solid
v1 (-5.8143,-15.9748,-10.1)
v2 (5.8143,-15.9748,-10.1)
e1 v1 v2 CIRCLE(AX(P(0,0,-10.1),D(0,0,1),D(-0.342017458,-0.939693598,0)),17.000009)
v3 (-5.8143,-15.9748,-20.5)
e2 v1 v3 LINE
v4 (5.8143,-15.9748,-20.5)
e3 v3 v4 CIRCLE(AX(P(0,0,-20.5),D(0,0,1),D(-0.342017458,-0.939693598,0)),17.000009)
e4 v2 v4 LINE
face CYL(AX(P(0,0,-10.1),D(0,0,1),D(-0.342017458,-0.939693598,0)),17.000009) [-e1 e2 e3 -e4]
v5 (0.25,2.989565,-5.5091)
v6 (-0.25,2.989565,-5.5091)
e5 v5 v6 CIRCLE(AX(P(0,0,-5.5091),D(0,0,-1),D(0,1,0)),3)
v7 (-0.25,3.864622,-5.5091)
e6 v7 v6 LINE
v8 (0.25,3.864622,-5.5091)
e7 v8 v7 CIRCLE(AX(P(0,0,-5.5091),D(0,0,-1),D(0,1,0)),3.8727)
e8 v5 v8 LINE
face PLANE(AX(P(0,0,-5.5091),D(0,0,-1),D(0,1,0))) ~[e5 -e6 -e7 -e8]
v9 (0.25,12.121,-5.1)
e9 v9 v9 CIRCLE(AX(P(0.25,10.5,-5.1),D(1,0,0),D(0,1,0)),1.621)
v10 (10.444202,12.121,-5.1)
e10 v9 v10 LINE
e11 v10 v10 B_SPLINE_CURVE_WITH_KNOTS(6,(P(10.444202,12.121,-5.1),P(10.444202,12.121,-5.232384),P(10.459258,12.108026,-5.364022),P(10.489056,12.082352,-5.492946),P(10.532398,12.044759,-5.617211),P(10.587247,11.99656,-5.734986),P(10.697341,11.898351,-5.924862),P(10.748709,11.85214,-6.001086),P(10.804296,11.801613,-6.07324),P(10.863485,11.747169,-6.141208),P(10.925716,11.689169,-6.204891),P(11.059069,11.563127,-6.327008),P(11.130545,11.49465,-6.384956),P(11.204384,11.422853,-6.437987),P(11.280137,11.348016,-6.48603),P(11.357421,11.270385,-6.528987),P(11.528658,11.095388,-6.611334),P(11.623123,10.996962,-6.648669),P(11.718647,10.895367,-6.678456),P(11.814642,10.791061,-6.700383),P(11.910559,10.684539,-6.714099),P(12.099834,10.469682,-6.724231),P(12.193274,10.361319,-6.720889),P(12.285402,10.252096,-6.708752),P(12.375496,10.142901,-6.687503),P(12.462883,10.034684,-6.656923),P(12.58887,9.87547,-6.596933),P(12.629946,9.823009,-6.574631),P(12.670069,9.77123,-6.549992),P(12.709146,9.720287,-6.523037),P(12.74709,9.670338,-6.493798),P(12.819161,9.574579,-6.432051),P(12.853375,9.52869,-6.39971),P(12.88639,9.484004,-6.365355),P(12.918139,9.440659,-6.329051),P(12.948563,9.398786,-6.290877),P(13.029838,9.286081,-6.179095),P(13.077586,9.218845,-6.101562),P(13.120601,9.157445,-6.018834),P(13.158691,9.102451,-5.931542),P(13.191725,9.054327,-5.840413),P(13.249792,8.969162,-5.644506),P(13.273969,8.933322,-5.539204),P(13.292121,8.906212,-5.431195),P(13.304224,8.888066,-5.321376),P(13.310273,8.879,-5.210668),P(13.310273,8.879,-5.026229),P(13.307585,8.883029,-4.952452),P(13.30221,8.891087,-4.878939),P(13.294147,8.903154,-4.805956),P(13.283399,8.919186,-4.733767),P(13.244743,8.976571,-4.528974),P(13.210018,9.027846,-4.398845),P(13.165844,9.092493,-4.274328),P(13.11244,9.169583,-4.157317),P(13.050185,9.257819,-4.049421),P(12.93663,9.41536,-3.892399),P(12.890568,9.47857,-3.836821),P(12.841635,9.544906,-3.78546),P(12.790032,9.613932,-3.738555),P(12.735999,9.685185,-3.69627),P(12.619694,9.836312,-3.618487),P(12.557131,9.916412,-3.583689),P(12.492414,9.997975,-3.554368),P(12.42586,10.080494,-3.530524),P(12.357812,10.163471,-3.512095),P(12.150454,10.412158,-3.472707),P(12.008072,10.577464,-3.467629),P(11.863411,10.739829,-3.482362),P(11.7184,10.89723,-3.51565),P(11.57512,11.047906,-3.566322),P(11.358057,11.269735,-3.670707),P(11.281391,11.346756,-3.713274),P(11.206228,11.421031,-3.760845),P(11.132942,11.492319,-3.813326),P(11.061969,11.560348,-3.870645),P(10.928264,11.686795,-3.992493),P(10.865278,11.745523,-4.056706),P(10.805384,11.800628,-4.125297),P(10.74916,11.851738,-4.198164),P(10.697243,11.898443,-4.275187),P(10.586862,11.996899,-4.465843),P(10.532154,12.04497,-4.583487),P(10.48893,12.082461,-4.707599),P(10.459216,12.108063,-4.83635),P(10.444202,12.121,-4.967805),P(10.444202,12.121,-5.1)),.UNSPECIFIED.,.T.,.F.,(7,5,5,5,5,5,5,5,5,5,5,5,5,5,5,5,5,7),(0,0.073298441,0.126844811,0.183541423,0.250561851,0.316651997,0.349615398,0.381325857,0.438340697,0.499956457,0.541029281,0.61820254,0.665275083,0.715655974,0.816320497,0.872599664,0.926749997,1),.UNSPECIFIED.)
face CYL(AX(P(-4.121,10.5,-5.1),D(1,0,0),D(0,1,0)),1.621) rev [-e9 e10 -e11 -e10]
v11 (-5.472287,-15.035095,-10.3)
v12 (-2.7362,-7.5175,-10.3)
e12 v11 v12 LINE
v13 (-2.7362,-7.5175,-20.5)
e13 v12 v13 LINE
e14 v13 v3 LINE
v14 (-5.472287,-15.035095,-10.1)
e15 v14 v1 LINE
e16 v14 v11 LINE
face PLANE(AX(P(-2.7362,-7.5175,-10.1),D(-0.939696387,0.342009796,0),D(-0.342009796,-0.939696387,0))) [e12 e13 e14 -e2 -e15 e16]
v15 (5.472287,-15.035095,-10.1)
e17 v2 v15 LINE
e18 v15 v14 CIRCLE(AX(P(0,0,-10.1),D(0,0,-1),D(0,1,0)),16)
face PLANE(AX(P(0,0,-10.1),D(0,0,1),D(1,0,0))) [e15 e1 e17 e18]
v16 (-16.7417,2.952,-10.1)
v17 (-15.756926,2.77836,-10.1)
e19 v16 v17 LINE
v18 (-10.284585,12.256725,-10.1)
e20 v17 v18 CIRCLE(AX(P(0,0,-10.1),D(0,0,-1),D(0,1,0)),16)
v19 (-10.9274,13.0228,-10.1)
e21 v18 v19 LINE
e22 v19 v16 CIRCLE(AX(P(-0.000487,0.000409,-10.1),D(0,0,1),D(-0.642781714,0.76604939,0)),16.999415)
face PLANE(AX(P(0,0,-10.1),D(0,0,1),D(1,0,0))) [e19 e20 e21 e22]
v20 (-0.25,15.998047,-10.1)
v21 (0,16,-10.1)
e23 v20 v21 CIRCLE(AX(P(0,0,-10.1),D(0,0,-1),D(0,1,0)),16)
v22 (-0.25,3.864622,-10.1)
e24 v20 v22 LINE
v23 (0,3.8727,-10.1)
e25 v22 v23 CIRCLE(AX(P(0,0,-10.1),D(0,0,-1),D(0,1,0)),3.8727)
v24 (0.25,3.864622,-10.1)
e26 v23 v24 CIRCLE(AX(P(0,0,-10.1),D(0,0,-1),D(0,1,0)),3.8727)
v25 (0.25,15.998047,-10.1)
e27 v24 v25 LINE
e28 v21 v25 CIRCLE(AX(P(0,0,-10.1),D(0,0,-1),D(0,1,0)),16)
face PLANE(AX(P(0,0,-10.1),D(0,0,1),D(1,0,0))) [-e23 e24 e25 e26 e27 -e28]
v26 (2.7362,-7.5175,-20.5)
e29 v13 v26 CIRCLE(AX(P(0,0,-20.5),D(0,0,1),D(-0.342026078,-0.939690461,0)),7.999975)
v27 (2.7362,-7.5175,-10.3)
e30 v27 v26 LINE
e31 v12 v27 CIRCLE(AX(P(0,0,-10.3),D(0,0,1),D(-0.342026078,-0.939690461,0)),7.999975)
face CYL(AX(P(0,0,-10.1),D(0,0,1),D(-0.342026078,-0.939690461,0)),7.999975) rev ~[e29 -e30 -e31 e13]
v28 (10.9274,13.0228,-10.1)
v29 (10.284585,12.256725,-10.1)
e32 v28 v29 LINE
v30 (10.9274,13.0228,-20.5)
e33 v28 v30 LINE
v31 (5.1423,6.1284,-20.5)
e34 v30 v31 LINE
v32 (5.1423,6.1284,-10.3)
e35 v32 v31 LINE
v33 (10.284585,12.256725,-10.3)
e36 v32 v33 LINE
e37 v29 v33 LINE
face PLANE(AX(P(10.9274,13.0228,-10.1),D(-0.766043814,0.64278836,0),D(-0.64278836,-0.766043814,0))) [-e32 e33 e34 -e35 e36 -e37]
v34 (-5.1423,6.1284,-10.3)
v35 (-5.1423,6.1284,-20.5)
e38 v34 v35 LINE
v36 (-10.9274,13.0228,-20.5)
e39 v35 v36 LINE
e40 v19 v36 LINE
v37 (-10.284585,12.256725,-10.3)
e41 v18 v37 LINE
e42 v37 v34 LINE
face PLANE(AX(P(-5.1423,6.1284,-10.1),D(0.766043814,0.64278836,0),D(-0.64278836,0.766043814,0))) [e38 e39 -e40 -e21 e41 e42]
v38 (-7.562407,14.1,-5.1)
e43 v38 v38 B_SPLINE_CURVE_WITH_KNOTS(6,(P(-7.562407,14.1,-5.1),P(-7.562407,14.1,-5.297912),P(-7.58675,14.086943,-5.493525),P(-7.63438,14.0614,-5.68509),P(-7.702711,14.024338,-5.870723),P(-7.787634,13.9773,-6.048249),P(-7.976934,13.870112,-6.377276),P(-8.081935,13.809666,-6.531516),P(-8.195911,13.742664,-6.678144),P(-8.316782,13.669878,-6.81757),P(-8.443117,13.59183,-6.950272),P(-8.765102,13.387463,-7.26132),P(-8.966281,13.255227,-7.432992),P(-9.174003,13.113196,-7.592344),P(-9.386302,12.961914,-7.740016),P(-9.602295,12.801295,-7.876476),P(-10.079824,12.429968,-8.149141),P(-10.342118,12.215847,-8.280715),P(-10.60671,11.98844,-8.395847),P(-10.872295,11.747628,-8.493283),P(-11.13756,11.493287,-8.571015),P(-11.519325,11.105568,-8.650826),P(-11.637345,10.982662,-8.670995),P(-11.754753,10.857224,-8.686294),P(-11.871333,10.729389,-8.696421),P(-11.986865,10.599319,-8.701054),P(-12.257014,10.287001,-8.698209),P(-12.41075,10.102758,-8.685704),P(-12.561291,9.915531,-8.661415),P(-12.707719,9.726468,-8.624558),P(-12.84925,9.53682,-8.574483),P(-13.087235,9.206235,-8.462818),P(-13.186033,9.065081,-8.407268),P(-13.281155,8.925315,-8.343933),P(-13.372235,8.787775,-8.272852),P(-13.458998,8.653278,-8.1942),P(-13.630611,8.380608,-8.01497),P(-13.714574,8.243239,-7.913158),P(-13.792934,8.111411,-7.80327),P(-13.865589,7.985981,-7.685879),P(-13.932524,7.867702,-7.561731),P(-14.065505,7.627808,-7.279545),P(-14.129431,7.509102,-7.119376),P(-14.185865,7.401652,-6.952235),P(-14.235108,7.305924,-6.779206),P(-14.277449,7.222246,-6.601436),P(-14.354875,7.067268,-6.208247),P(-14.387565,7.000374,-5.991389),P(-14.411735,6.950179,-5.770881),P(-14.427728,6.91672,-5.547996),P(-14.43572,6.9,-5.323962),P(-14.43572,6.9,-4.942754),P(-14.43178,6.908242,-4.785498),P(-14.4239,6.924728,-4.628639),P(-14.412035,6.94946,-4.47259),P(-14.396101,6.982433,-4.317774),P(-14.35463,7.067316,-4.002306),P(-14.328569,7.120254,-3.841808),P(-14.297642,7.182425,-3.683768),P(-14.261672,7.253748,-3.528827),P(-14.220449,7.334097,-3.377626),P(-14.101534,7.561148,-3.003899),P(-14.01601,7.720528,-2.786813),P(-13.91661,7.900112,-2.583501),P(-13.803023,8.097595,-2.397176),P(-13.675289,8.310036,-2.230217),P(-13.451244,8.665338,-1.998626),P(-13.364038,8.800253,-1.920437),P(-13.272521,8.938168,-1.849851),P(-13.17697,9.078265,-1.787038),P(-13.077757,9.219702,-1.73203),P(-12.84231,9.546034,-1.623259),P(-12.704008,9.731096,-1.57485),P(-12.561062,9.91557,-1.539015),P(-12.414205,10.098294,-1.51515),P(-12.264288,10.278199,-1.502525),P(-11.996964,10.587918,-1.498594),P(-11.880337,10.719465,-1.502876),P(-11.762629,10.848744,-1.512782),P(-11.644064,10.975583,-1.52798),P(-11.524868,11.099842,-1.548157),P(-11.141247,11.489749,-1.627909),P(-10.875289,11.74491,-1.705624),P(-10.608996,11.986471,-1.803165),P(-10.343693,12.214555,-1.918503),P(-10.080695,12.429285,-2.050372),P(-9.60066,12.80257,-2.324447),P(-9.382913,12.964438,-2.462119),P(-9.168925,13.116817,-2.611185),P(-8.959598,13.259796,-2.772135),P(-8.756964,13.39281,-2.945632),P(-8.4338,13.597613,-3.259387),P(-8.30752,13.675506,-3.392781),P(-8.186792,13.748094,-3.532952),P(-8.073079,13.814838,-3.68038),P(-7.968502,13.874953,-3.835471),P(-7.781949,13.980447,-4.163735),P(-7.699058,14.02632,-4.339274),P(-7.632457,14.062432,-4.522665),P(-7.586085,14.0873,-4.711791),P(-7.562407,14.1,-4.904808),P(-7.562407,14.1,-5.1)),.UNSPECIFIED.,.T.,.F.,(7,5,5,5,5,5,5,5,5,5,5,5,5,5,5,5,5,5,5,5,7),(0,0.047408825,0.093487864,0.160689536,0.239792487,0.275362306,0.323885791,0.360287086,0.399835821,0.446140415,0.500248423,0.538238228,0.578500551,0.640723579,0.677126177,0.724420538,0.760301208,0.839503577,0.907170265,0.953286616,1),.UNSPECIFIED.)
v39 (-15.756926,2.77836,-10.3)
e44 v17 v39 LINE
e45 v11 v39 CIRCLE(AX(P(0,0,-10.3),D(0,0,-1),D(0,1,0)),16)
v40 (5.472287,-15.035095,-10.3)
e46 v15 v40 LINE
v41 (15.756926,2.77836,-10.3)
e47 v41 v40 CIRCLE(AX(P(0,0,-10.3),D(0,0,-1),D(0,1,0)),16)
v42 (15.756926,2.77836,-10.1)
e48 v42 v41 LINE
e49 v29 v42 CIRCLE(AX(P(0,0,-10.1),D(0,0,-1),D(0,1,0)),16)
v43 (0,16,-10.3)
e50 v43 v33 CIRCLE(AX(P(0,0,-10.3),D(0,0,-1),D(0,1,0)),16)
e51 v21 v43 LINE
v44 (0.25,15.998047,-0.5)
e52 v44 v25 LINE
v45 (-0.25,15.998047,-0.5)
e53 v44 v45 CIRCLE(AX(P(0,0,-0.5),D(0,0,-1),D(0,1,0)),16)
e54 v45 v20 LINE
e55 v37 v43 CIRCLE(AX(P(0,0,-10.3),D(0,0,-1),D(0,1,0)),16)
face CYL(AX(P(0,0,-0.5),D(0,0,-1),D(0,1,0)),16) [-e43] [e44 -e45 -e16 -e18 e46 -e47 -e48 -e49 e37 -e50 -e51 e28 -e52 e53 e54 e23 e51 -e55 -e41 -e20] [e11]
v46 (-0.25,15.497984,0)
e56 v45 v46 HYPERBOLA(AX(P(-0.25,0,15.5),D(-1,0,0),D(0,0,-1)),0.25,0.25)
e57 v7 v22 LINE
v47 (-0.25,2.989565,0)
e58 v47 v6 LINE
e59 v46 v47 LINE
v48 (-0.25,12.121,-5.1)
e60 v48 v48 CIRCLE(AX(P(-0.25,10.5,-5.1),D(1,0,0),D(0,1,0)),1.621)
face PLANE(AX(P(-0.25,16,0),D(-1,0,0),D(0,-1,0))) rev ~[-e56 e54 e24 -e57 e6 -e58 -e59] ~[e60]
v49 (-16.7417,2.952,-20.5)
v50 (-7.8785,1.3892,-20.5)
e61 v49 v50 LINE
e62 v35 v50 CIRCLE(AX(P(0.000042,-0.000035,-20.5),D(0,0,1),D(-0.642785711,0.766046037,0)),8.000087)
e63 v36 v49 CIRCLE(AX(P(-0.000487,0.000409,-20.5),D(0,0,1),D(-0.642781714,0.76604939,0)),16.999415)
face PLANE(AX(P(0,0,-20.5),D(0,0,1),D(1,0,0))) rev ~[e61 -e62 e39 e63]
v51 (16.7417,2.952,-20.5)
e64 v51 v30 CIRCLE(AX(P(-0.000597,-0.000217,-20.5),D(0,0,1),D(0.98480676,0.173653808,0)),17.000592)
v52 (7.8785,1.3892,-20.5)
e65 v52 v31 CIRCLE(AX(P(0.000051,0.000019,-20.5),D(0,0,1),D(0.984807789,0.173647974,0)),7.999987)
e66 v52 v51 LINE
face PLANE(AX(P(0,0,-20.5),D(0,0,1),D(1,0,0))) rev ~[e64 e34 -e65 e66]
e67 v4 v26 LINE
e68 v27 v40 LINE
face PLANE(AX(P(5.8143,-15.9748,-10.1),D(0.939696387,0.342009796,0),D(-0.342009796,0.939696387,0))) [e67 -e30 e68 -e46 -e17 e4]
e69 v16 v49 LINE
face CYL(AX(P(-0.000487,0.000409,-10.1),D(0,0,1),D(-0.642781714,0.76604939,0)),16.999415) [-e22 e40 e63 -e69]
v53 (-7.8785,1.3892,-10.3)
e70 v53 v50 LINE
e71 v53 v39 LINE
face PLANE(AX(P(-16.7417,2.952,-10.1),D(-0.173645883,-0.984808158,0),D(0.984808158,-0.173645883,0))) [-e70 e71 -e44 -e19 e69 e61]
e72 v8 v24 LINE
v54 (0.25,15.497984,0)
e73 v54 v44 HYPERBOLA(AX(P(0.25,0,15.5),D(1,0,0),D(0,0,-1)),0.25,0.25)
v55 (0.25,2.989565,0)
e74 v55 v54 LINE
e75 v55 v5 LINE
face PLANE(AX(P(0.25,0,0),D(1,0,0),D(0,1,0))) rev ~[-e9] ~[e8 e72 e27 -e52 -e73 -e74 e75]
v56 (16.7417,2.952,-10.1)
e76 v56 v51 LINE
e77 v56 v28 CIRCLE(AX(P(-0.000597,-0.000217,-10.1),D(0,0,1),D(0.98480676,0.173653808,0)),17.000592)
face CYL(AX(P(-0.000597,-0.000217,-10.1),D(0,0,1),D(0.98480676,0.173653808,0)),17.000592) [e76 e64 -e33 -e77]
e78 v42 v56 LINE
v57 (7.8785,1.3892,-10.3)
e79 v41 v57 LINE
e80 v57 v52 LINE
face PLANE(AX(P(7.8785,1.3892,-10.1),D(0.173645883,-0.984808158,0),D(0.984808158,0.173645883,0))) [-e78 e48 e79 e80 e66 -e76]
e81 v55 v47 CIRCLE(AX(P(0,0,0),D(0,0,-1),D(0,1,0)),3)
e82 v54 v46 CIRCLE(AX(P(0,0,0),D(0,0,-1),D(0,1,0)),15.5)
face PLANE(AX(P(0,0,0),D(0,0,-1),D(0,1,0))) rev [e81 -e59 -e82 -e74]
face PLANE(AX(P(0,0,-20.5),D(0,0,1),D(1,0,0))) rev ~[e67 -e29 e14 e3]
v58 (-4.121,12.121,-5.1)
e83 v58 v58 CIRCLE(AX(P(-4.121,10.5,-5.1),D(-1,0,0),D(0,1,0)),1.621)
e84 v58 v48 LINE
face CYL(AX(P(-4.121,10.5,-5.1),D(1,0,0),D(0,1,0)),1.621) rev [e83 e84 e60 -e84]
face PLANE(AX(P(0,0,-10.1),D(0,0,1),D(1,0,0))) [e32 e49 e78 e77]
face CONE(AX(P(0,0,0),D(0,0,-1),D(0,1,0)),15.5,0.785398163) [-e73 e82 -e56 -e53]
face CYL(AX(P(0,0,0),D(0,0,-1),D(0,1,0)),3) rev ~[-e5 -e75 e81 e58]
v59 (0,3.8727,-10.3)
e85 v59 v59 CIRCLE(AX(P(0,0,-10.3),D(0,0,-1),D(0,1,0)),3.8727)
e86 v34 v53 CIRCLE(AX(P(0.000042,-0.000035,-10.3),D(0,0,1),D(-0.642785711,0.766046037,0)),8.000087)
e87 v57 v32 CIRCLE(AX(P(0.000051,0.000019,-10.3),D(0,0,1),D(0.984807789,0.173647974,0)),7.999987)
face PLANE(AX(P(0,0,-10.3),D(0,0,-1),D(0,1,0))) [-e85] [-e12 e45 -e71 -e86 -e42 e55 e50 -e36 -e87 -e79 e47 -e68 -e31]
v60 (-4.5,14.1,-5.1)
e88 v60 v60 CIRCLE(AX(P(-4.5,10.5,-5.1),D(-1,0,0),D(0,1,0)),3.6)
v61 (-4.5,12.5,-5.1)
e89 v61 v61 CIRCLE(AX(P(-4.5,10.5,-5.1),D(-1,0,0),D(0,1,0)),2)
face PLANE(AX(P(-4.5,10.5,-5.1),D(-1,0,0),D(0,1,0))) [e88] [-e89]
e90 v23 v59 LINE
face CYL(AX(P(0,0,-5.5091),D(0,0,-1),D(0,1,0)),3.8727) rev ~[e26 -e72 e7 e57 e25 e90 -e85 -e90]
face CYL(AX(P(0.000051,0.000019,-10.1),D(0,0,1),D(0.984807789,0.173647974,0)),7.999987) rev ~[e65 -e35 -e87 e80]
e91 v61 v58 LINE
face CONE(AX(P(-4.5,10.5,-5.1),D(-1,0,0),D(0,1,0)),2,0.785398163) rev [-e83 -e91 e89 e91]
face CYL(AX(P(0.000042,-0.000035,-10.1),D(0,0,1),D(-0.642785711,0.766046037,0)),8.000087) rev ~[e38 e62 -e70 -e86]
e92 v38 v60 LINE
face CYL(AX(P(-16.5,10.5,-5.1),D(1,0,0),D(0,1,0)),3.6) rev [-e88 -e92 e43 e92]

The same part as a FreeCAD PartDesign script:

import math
import FreeCAD as App
import Part
import Sketcher
Q = App.Units.Quantity


def add_polygon(sketch, points):
    """Adds a closed chain of lines whose ends are joined by coincident constraints."""
    first, n = sketch.GeometryCount, len(points)
    for a, b in zip(points, points[1:] + points[:1]):
        sketch.addGeometry(Part.LineSegment(App.Vector(*a, 0), App.Vector(*b, 0)), False)
    for i in range(n):
        sketch.addConstraint(Sketcher.Constraint("Coincident", first + i, 2, first + (i + 1) % n, 1))

doc = App.newDocument("Part")
body = doc.addObject("PartDesign::Body", "Body")

sketch1 = doc.addObject("Sketcher::SketchObject", "Sketch")
body.addObject(sketch1)
sketch1.AttachmentSupport = (doc.YZ_Plane, [""])
sketch1.MapMode = "FlatFace"
add_polygon(sketch1, [(0, 0), (0, -10.3), (16, -10.3), (16, -0.5), (15.5, 0)])
sketch1.addConstraint(Sketcher.Constraint("Vertical", 0))
sketch1.addConstraint(Sketcher.Constraint("Horizontal", 1))
sketch1.addConstraint(Sketcher.Constraint("Vertical", 2))
sketch1.addConstraint(Sketcher.Constraint("Horizontal", 4))
sketch1.addConstraint(Sketcher.Constraint("Coincident", 4, 2, -1, 1))
sketch1.addConstraint(Sketcher.Constraint("DistanceX", 1, 1, 1, 2, Q("16 mm")))
sketch1.addConstraint(Sketcher.Constraint("Angle", 3, Q("135 deg")))
sketch1.addConstraint(Sketcher.Constraint("DistanceX", 4, 2, 4, 1, Q("15.5 mm")))
sketch1.addConstraint(Sketcher.Constraint("DistanceY", 0, 2, 0, 1, Q("10.3 mm")))
revolution = doc.addObject("PartDesign::Revolution", "Revolution")
body.addObject(revolution)
revolution.Profile = sketch1
revolution.ReferenceAxis = (sketch1, ["V_Axis"])
revolution.Angle = 360

sketch2 = doc.addObject("Sketcher::SketchObject", "Sketch001")
body.addObject(sketch2)
sketch2.AttachmentSupport = (doc.XY_Plane, [""])
sketch2.MapMode = "FlatFace"
sketch2.AttachmentOffset = App.Placement(App.Vector(0, 0, -10.1), App.Rotation())
sketch2.addGeometry(Part.ArcOfCircle(Part.Circle(App.Vector(0, 0, 0), App.Vector(0, 0, 1), 17.000041), math.radians(129.999931), math.radians(170.000045)), False)
sketch2.addGeometry(Part.LineSegment(App.Vector(-16.7417, 2.952, 0), App.Vector(-7.8785, 1.3892, 0)), False)
sketch2.addGeometry(Part.ArcOfCircle(Part.Circle(App.Vector(0, 0, 0), App.Vector(0, 0, 1), 8.000033), math.radians(129.999791), math.radians(169.999944)), False)
sketch2.addGeometry(Part.LineSegment(App.Vector(-5.1423, 6.1284, 0), App.Vector(-10.9274, 13.0228, 0)), False)
sketch2.addConstraint(Sketcher.Constraint("Coincident", 0, 2, 1, 1))
sketch2.addConstraint(Sketcher.Constraint("Coincident", 1, 2, 2, 2))
sketch2.addConstraint(Sketcher.Constraint("Coincident", 2, 1, 3, 1))
sketch2.addConstraint(Sketcher.Constraint("Coincident", 3, 2, 0, 1))
sketch2.addConstraint(Sketcher.Constraint("Coincident", 0, 3, -1, 1))
sketch2.addConstraint(Sketcher.Constraint("Coincident", 2, 3, -1, 1))
sketch2.addConstraint(Sketcher.Constraint("Radius", 0, Q("17 mm")))
sketch2.addConstraint(Sketcher.Constraint("Radius", 2, Q("8 mm")))
sketch2.addConstraint(Sketcher.Constraint("Angle", 1, Q("-9.9999 deg")))
sketch2.addConstraint(Sketcher.Constraint("Angle", 3, Q("130 deg")))
sketch2.addConstraint(Sketcher.Constraint("DistanceY", -1, 1, 0, 2, Q("2.952 mm")))
sketch2.addConstraint(Sketcher.Constraint("DistanceX", 3, 2, 1, 2, Q("3.049 mm")))
pad1 = doc.addObject("PartDesign::Pad", "Pad")
body.addObject(pad1)
pad1.Profile = sketch2
pad1.Length = 10.4
pad1.Reversed = True

sketch3 = doc.addObject("Sketcher::SketchObject", "Sketch002")
body.addObject(sketch3)
sketch3.AttachmentSupport = (doc.XY_Plane, [""])
sketch3.MapMode = "FlatFace"
sketch3.AttachmentOffset = App.Placement(App.Vector(0, 0, -10.1), App.Rotation())
sketch3.addGeometry(Part.LineSegment(App.Vector(-2.7362, -7.5175, 0), App.Vector(-5.8143, -15.9748, 0)), False)
sketch3.addGeometry(Part.ArcOfCircle(Part.Circle(App.Vector(0, 0, 0), App.Vector(0, 0, 1), 17.000009), math.radians(-109.999836), math.radians(-70.000164)), False)
sketch3.addGeometry(Part.LineSegment(App.Vector(5.8143, -15.9748, 0), App.Vector(2.7362, -7.5175, 0)), False)
sketch3.addGeometry(Part.ArcOfCircle(Part.Circle(App.Vector(0, 0, 0), App.Vector(0, 0, 1), 7.999975), math.radians(-110.000362), math.radians(-69.999638)), False)
sketch3.addConstraint(Sketcher.Constraint("Coincident", 0, 2, 1, 1))
sketch3.addConstraint(Sketcher.Constraint("Coincident", 1, 2, 2, 1))
sketch3.addConstraint(Sketcher.Constraint("Coincident", 2, 2, 3, 2))
sketch3.addConstraint(Sketcher.Constraint("Coincident", 3, 1, 0, 1))
sketch3.addConstraint(Sketcher.Constraint("Coincident", 1, 3, -1, 1))
sketch3.addConstraint(Sketcher.Constraint("Coincident", 3, 3, -1, 1))
sketch3.addConstraint(Sketcher.Constraint("Horizontal", 0, 2, 1, 2))
sketch3.addConstraint(Sketcher.Constraint("Horizontal", 2, 2, 3, 1))
sketch3.addConstraint(Sketcher.Constraint("Radius", 1, Q("17 mm")))
sketch3.addConstraint(Sketcher.Constraint("Radius", 3, Q("8 mm")))
sketch3.addConstraint(Sketcher.Constraint("Angle", 0, Q("-109.9994 deg")))
sketch3.addConstraint(Sketcher.Constraint("DistanceX", 0, 2, -1, 1, Q("5.8143 mm")))
pad2 = doc.addObject("PartDesign::Pad", "Pad001")
body.addObject(pad2)
pad2.Profile = sketch3
pad2.Length = 10.4
pad2.Reversed = True

sketch4 = doc.addObject("Sketcher::SketchObject", "Sketch003")
body.addObject(sketch4)
sketch4.AttachmentSupport = (doc.XY_Plane, [""])
sketch4.MapMode = "FlatFace"
sketch4.AttachmentOffset = App.Placement(App.Vector(0, 0, -10.1), App.Rotation())
sketch4.addGeometry(Part.ArcOfCircle(Part.Circle(App.Vector(0, 0, 0), App.Vector(0, 0, 1), 8.00004), math.radians(10.000056), math.radians(50.000209)), False)
sketch4.addGeometry(Part.LineSegment(App.Vector(7.8785, 1.3892, 0), App.Vector(16.7417, 2.952, 0)), False)
sketch4.addGeometry(Part.ArcOfCircle(Part.Circle(App.Vector(0, 0, 0), App.Vector(0, 0, 1), 16.999965), math.radians(9.999955), math.radians(50.000069)), False)
sketch4.addGeometry(Part.LineSegment(App.Vector(10.9274, 13.0228, 0), App.Vector(5.1423, 6.1284, 0)), False)
sketch4.addConstraint(Sketcher.Constraint("Coincident", 0, 1, 1, 1))
sketch4.addConstraint(Sketcher.Constraint("Coincident", 1, 2, 2, 1))
sketch4.addConstraint(Sketcher.Constraint("Coincident", 2, 2, 3, 1))
sketch4.addConstraint(Sketcher.Constraint("Coincident", 3, 2, 0, 2))
sketch4.addConstraint(Sketcher.Constraint("Coincident", 0, 3, -1, 1))
sketch4.addConstraint(Sketcher.Constraint("Coincident", 2, 3, -1, 1))
sketch4.addConstraint(Sketcher.Constraint("Radius", 0, Q("8 mm")))
sketch4.addConstraint(Sketcher.Constraint("Radius", 2, Q("17 mm")))
sketch4.addConstraint(Sketcher.Constraint("Angle", 1, Q("9.9999 deg")))
sketch4.addConstraint(Sketcher.Constraint("Angle", 3, Q("-130 deg")))
sketch4.addConstraint(Sketcher.Constraint("DistanceY", -1, 1, 1, 2, Q("2.952 mm")))
sketch4.addConstraint(Sketcher.Constraint("DistanceX", -1, 1, 2, 2, Q("10.9274 mm")))
pad3 = doc.addObject("PartDesign::Pad", "Pad002")
body.addObject(pad3)
pad3.Profile = sketch4
pad3.Length = 10.4
pad3.Reversed = True

sketch5 = doc.addObject("Sketcher::SketchObject", "Sketch004")
body.addObject(sketch5)
sketch5.AttachmentSupport = (doc.YZ_Plane, [""])
sketch5.MapMode = "FlatFace"
add_polygon(sketch5, [(0, 0), (0, -28.3636), (1.3636, -28.3636), (1.1275, -28.1275), (1.1275, -13.2545), (2.4545, -13.2545), (2.4545, -11.8909), (3.8727, -11.8909), (3.8727, -5.5091), (3, -5.5091), (3, 0)])
sketch5.addConstraint(Sketcher.Constraint("Vertical", 0))
sketch5.addConstraint(Sketcher.Constraint("Horizontal", 1))
sketch5.addConstraint(Sketcher.Constraint("Vertical", 3))
sketch5.addConstraint(Sketcher.Constraint("Horizontal", 4))
sketch5.addConstraint(Sketcher.Constraint("Vertical", 5))
sketch5.addConstraint(Sketcher.Constraint("Horizontal", 6))
sketch5.addConstraint(Sketcher.Constraint("Vertical", 7))
sketch5.addConstraint(Sketcher.Constraint("Horizontal", 8))
sketch5.addConstraint(Sketcher.Constraint("Vertical", 9))
sketch5.addConstraint(Sketcher.Constraint("Horizontal", 10))
sketch5.addConstraint(Sketcher.Constraint("Coincident", 10, 2, -1, 1))
sketch5.addConstraint(Sketcher.Constraint("Equal", 1, 5))
sketch5.addConstraint(Sketcher.Constraint("DistanceX", 10, 2, 10, 1, Q("3 mm")))
sketch5.addConstraint(Sketcher.Constraint("Angle", 2, Q("135 deg")))
sketch5.addConstraint(Sketcher.Constraint("DistanceX", 4, 1, 4, 2, Q("1.327 mm")))
sketch5.addConstraint(Sketcher.Constraint("DistanceY", 3, 1, 3, 2, Q("14.873 mm")))
sketch5.addConstraint(Sketcher.Constraint("DistanceY", 9, 1, 9, 2, Q("5.509 mm")))
sketch5.addConstraint(Sketcher.Constraint("Distance", 2, Q("0.334 mm")))
sketch5.addConstraint(Sketcher.Constraint("DistanceX", 1, 1, 1, 2, Q("1.3636 mm")))
sketch5.addConstraint(Sketcher.Constraint("DistanceX", 6, 1, 6, 2, Q("1.4182 mm")))
sketch5.addConstraint(Sketcher.Constraint("DistanceY", 0, 2, 0, 1, Q("28.3636 mm")))
groove = doc.addObject("PartDesign::Groove", "Groove")
body.addObject(groove)
groove.Profile = sketch5
groove.ReferenceAxis = (sketch5, ["V_Axis"])
groove.Angle = 360

sketch6 = doc.addObject("Sketcher::SketchObject", "Sketch005")
body.addObject(sketch6)
sketch6.AttachmentSupport = (doc.XY_Plane, [""])
sketch6.MapMode = "FlatFace"
add_polygon(sketch6, [(0.25, 16), (-0.25, 16), (-0.25, 0), (0.25, 0)])
sketch6.addConstraint(Sketcher.Constraint("Horizontal", 0))
sketch6.addConstraint(Sketcher.Constraint("Vertical", 1))
sketch6.addConstraint(Sketcher.Constraint("Horizontal", 2))
sketch6.addConstraint(Sketcher.Constraint("Vertical", 3))
sketch6.addConstraint(Sketcher.Constraint("Symmetric", 1, 2, 2, 2, -1, 1))
sketch6.addConstraint(Sketcher.Constraint("DistanceY", 1, 2, 1, 1, Q("16 mm")))
sketch6.addConstraint(Sketcher.Constraint("DistanceX", 0, 2, 0, 1, Q("0.5 mm")))
pocket1 = doc.addObject("PartDesign::Pocket", "Pocket")
body.addObject(pocket1)
pocket1.Profile = sketch6
pocket1.Length = 10.1

sketch7 = doc.addObject("Sketcher::SketchObject", "Sketch006")
body.addObject(sketch7)
sketch7.AttachmentSupport = (doc.XY_Plane, [""])
sketch7.MapMode = "FlatFace"
sketch7.AttachmentOffset = App.Placement(App.Vector(0, 0, -5.1), App.Rotation())
add_polygon(sketch7, [(-16.5, 10.5), (13.5, 10.5), (13.5, 12.121), (-4.121, 12.121), (-4.5, 12.5), (-4.5, 14.1), (-16.5, 14.1)])
sketch7.addGeometry(Part.LineSegment(App.Vector(13.5, 10.5, 0), App.Vector(-16.5, 10.5, 0)), True)
sketch7.addConstraint(Sketcher.Constraint("Horizontal", 0))
sketch7.addConstraint(Sketcher.Constraint("Vertical", 1))
sketch7.addConstraint(Sketcher.Constraint("Horizontal", 2))
sketch7.addConstraint(Sketcher.Constraint("Vertical", 4))
sketch7.addConstraint(Sketcher.Constraint("Horizontal", 5))
sketch7.addConstraint(Sketcher.Constraint("Vertical", 6))
sketch7.addConstraint(Sketcher.Constraint("Horizontal", 7))
sketch7.addConstraint(Sketcher.Constraint("Coincident", 7, 1, 0, 2))
sketch7.addConstraint(Sketcher.Constraint("Vertical", 5, 2, 7, 2))
sketch7.addConstraint(Sketcher.Constraint("DistanceX", 0, 1, 0, 2, Q("30 mm")))
sketch7.addConstraint(Sketcher.Constraint("DistanceX", 5, 2, 5, 1, Q("12 mm")))
sketch7.addConstraint(Sketcher.Constraint("Angle", 3, Q("135 deg")))
sketch7.addConstraint(Sketcher.Constraint("DistanceY", 4, 1, 4, 2, Q("1.6 mm")))
sketch7.addConstraint(Sketcher.Constraint("DistanceY", 6, 2, 6, 1, Q("3.6 mm")))
sketch7.addConstraint(Sketcher.Constraint("DistanceX", -1, 1, 0, 2, Q("13.5 mm")))
sketch7.addConstraint(Sketcher.Constraint("DistanceY", -1, 1, 0, 2, Q("10.5 mm")))
sketch7.addConstraint(Sketcher.Constraint("DistanceX", 2, 2, 2, 1, Q("17.621 mm")))
groove2 = doc.addObject("PartDesign::Groove", "Groove001")
body.addObject(groove2)
groove2.Profile = sketch7
groove2.ReferenceAxis = (sketch7, ["Axis0"])
groove2.Angle = 360

sketch8 = doc.addObject("Sketcher::SketchObject", "Sketch007")
body.addObject(sketch8)
sketch8.AttachmentSupport = (doc.XY_Plane, [""])
sketch8.MapMode = "FlatFace"
sketch8.AttachmentOffset = App.Placement(App.Vector(0, 0, -21.8), App.Rotation())
sketch8.addGeometry(Part.ArcOfCircle(Part.Circle(App.Vector(0, -2.4078, 0), App.Vector(0, 0, 1), 0.787339), math.radians(43.342848), math.radians(136.657152)), False)
sketch8.addGeometry(Part.ArcOfCircle(Part.Circle(App.Vector(0.8998, -1.5586, 0), App.Vector(0, 0, 1), 0.449908), math.radians(-136.657152), math.radians(16.658998)), False)
sketch8.addGeometry(Part.ArcOfCircle(Part.Circle(App.Vector(2.0852, -1.2039, 0), App.Vector(0, 0, 1), 0.787353), math.radians(103.342607), math.radians(196.65812)), False)
sketch8.addGeometry(Part.ArcOfCircle(Part.Circle(App.Vector(1.7997, 0, 0), App.Vector(0, 0, 1), 0.449937), math.radians(-76.661773), math.radians(76.661773)), False)
sketch8.addGeometry(Part.ArcOfCircle(Part.Circle(App.Vector(2.0852, 1.2039, 0), App.Vector(0, 0, 1), 0.787343), math.radians(163.34188), math.radians(256.657393)), False)
sketch8.addGeometry(Part.ArcOfCircle(Part.Circle(App.Vector(0.8998, 1.5586, 0), App.Vector(0, 0, 1), 0.449987), math.radians(-16.658998), math.radians(136.657152)), False)
sketch8.addGeometry(Part.ArcOfCircle(Part.Circle(App.Vector(0, 2.4078, 0), App.Vector(0, 0, 1), 0.787339), math.radians(-136.657152), math.radians(-43.342848)), False)
sketch8.addGeometry(Part.ArcOfCircle(Part.Circle(App.Vector(-0.8999, 1.5586, 0), App.Vector(0, 0, 1), 0.449981), math.radians(43.334109), math.radians(196.662649)), False)
sketch8.addGeometry(Part.ArcOfCircle(Part.Circle(App.Vector(-2.0852, 1.2039, 0), App.Vector(0, 0, 1), 0.787353), math.radians(-76.657393), math.radians(16.65812)), False)
sketch8.addGeometry(Part.ArcOfCircle(Part.Circle(App.Vector(-1.7997, 0, 0), App.Vector(0, 0, 1), 0.449937), math.radians(103.338227), math.radians(256.661773)), False)
sketch8.addGeometry(Part.ArcOfCircle(Part.Circle(App.Vector(-2.0852, -1.2039, 0), App.Vector(0, 0, 1), 0.787343), math.radians(-16.65812), math.radians(76.657393)), False)
sketch8.addGeometry(Part.ArcOfCircle(Part.Circle(App.Vector(-0.8999, -1.5586, 0), App.Vector(0, 0, 1), 0.449891), math.radians(163.337351), math.radians(316.665891)), False)
sketch8.addConstraint(Sketcher.Constraint("Tangent", 0, 1, 1, 1))
sketch8.addConstraint(Sketcher.Constraint("Tangent", 1, 2, 2, 2))
sketch8.addConstraint(Sketcher.Constraint("Tangent", 2, 1, 3, 1))
sketch8.addConstraint(Sketcher.Constraint("Tangent", 3, 2, 4, 2))
sketch8.addConstraint(Sketcher.Constraint("Tangent", 4, 1, 5, 1))
sketch8.addConstraint(Sketcher.Constraint("Tangent", 5, 2, 6, 2))
sketch8.addConstraint(Sketcher.Constraint("Tangent", 6, 1, 7, 1))
sketch8.addConstraint(Sketcher.Constraint("Tangent", 7, 2, 8, 2))
sketch8.addConstraint(Sketcher.Constraint("Tangent", 8, 1, 9, 1))
sketch8.addConstraint(Sketcher.Constraint("Tangent", 9, 2, 10, 2))
sketch8.addConstraint(Sketcher.Constraint("Tangent", 10, 1, 11, 1))
sketch8.addConstraint(Sketcher.Constraint("Tangent", 11, 2, 0, 2))
sketch8.addConstraint(Sketcher.Constraint("Equal", 0, 2))
sketch8.addConstraint(Sketcher.Constraint("Equal", 1, 3))
sketch8.addConstraint(Sketcher.Constraint("Equal", 2, 4))
sketch8.addConstraint(Sketcher.Constraint("Equal", 3, 5))
sketch8.addConstraint(Sketcher.Constraint("Equal", 4, 6))
sketch8.addConstraint(Sketcher.Constraint("Equal", 5, 7))
sketch8.addConstraint(Sketcher.Constraint("Equal", 6, 8))
sketch8.addConstraint(Sketcher.Constraint("Equal", 7, 9))
sketch8.addConstraint(Sketcher.Constraint("Equal", 8, 10))
sketch8.addConstraint(Sketcher.Constraint("Equal", 9, 11))
sketch8.addConstraint(Sketcher.Constraint("Symmetric", 0, 3, 6, 3, -1, 1))
sketch8.addConstraint(Sketcher.Constraint("Symmetric", 2, 3, 8, 3, -1, 1))
sketch8.addConstraint(Sketcher.Constraint("Symmetric", 4, 3, 10, 3, -1, 1))
sketch8.addConstraint(Sketcher.Constraint("Symmetric", 5, 3, 7, 3, -2))
sketch8.addConstraint(Sketcher.Constraint("PointOnObject", 3, 3, -1))
sketch8.addConstraint(Sketcher.Constraint("Radius", 1, Q("0.45 mm")))
sketch8.addConstraint(Sketcher.Constraint("DistanceX", 7, 3, -1, 1, Q("0.9 mm")))
sketch8.addConstraint(Sketcher.Constraint("Radius", 0, Q("0.7873 mm")))
sketch8.addConstraint(Sketcher.Constraint("DistanceX", 1, 3, 3, 3, Q("0.9 mm")))
sketch8.addConstraint(Sketcher.Constraint("DistanceY", 2, 3, -1, 1, Q("1.204 mm")))
pocket2 = doc.addObject("PartDesign::Pocket", "Pocket001")
body.addObject(pocket2)
pocket2.Profile = sketch8
pocket2.Length = 2.64

sketch9 = doc.addObject("Sketcher::SketchObject", "Sketch008")
body.addObject(sketch9)
sketch9.AttachmentSupport = (doc.YZ_Plane, [""])
sketch9.MapMode = "FlatFace"
sketch9.AttachmentOffset = App.Placement(App.Vector(0, 0, -8.5), App.Rotation())
sketch9.addGeometry(Part.ArcOfCircle(Part.Circle(App.Vector(8.3861, -5.1, 0), App.Vector(0, 0, 1), 0.691272), math.radians(-46.652981), math.radians(46.652981)), False)
sketch9.addGeometry(Part.ArcOfCircle(Part.Circle(App.Vector(9.1317, -4.31, 0), App.Vector(0, 0, 1), 0.395015), math.radians(73.345218), math.radians(226.661768)), False)
sketch9.addGeometry(Part.ArcOfCircle(Part.Circle(App.Vector(9.4431, -3.2693, 0), App.Vector(0, 0, 1), 0.691276), math.radians(-106.660346), math.radians(-13.348727)), False)
sketch9.addGeometry(Part.ArcOfCircle(Part.Circle(App.Vector(10.5, -3.52, 0), App.Vector(0, 0, 1), 0.39495), math.radians(13.336047), math.radians(166.663953)), False)
sketch9.addGeometry(Part.ArcOfCircle(Part.Circle(App.Vector(11.5569, -3.2693, 0), App.Vector(0, 0, 1), 0.691321), math.radians(-166.651273), math.radians(-73.339654)), False)
sketch9.addGeometry(Part.ArcOfCircle(Part.Circle(App.Vector(11.8683, -4.31, 0), App.Vector(0, 0, 1), 0.394969), math.radians(-46.661768), math.radians(106.654782)), False)
sketch9.addGeometry(Part.ArcOfCircle(Part.Circle(App.Vector(12.6139, -5.1, 0), App.Vector(0, 0, 1), 0.691272), math.radians(133.347019), math.radians(226.652981)), False)
sketch9.addGeometry(Part.ArcOfCircle(Part.Circle(App.Vector(11.8683, -5.89, 0), App.Vector(0, 0, 1), 0.395015), math.radians(-106.654782), math.radians(46.661768)), False)
sketch9.addGeometry(Part.ArcOfCircle(Part.Circle(App.Vector(11.5569, -6.9307, 0), App.Vector(0, 0, 1), 0.691276), math.radians(73.339654), math.radians(166.651273)), False)
sketch9.addGeometry(Part.ArcOfCircle(Part.Circle(App.Vector(10.5, -6.68, 0), App.Vector(0, 0, 1), 0.39495), math.radians(-166.663953), math.radians(-13.336047)), False)
sketch9.addGeometry(Part.ArcOfCircle(Part.Circle(App.Vector(9.4431, -6.9307, 0), App.Vector(0, 0, 1), 0.691321), math.radians(13.348727), math.radians(106.660346)), False)
sketch9.addGeometry(Part.ArcOfCircle(Part.Circle(App.Vector(9.1317, -5.89, 0), App.Vector(0, 0, 1), 0.394969), math.radians(133.338232), math.radians(286.654782)), False)
sketch9.addConstraint(Sketcher.Constraint("Tangent", 0, 2, 1, 2))
sketch9.addConstraint(Sketcher.Constraint("Tangent", 1, 1, 2, 1))
sketch9.addConstraint(Sketcher.Constraint("Tangent", 2, 2, 3, 2))
sketch9.addConstraint(Sketcher.Constraint("Tangent", 3, 1, 4, 1))
sketch9.addConstraint(Sketcher.Constraint("Tangent", 4, 2, 5, 2))
sketch9.addConstraint(Sketcher.Constraint("Tangent", 5, 1, 6, 1))
sketch9.addConstraint(Sketcher.Constraint("Tangent", 6, 2, 7, 2))
sketch9.addConstraint(Sketcher.Constraint("Tangent", 7, 1, 8, 1))
sketch9.addConstraint(Sketcher.Constraint("Tangent", 8, 2, 9, 2))
sketch9.addConstraint(Sketcher.Constraint("Tangent", 9, 1, 10, 1))
sketch9.addConstraint(Sketcher.Constraint("Tangent", 10, 2, 11, 2))
sketch9.addConstraint(Sketcher.Constraint("Tangent", 11, 1, 0, 1))
sketch9.addConstraint(Sketcher.Constraint("Equal", 0, 2))
sketch9.addConstraint(Sketcher.Constraint("Equal", 1, 3))
sketch9.addConstraint(Sketcher.Constraint("Equal", 2, 4))
sketch9.addConstraint(Sketcher.Constraint("Equal", 3, 5))
sketch9.addConstraint(Sketcher.Constraint("Equal", 4, 6))
sketch9.addConstraint(Sketcher.Constraint("Equal", 5, 7))
sketch9.addConstraint(Sketcher.Constraint("Equal", 6, 8))
sketch9.addConstraint(Sketcher.Constraint("Equal", 7, 9))
sketch9.addConstraint(Sketcher.Constraint("Equal", 8, 10))
sketch9.addConstraint(Sketcher.Constraint("Equal", 9, 11))
sketch9.addConstraint(Sketcher.Constraint("Horizontal", 2, 3, 4, 3))
sketch9.addConstraint(Sketcher.Constraint("Horizontal", 1, 3, 5, 3))
sketch9.addConstraint(Sketcher.Constraint("Horizontal", 0, 3, 6, 3))
sketch9.addConstraint(Sketcher.Constraint("Horizontal", 8, 3, 10, 3))
sketch9.addConstraint(Sketcher.Constraint("Horizontal", 7, 3, 11, 3))
sketch9.addConstraint(Sketcher.Constraint("Vertical", 5, 3, 7, 3))
sketch9.addConstraint(Sketcher.Constraint("Vertical", 4, 3, 8, 3))
sketch9.addConstraint(Sketcher.Constraint("Radius", 1, Q("0.395 mm")))
sketch9.addConstraint(Sketcher.Constraint("DistanceY", 0, 3, -1, 1, Q("5.1 mm")))
sketch9.addConstraint(Sketcher.Constraint("DistanceX", -1, 1, 3, 3, Q("10.5 mm")))
sketch9.addConstraint(Sketcher.Constraint("Radius", 0, Q("0.6913 mm")))
sketch9.addConstraint(Sketcher.Constraint("DistanceY", 1, 3, -1, 1, Q("4.31 mm")))
sketch9.addConstraint(Sketcher.Constraint("DistanceY", 3, 3, -1, 1, Q("3.52 mm")))
sketch9.addConstraint(Sketcher.Constraint("DistanceX", -1, 1, 0, 3, Q("8.386 mm")))
pocket3 = doc.addObject("PartDesign::Pocket", "Pocket002")
body.addObject(pocket3)
pocket3.Profile = sketch9
pocket3.Length = 2.34
pocket3.Reversed = True

doc.recompute()
